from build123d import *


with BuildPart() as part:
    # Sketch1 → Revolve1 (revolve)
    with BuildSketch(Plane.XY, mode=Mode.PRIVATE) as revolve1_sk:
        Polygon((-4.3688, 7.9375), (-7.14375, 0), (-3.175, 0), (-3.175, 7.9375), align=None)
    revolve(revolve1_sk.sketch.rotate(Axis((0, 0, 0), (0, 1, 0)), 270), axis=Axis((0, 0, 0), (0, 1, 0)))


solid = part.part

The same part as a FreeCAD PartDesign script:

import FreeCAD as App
import Part
import Sketcher

V = App.Vector
Q = App.Units.Quantity

doc = App.newDocument("Part")
body = doc.addObject("PartDesign::Body", "Body")

# Sketch on XY plane
sketch1 = doc.addObject("Sketcher::SketchObject", "Sketch")
body.addObject(sketch1)
sketch1.AttachmentSupport = (doc.XY_Plane, [""])
sketch1.MapMode = "FlatFace"
sketch1.addGeometry(Part.LineSegment(V(-4.4, 7.9, 0), V(-7.1, 0, 0)), False)
sketch1.addGeometry(Part.LineSegment(V(-7.1, 0, 0), V(-3.2, 0, 0)), False)
sketch1.addGeometry(Part.LineSegment(V(-3.2, 0, 0), V(-3.2, 7.9, 0)), False)
sketch1.addGeometry(Part.LineSegment(V(-3.2, 7.9, 0), V(-4.4, 7.9, 0)), False)
sketch1.addConstraint(Sketcher.Constraint("Coincident", 0, 2, 1, 1))
sketch1.addConstraint(Sketcher.Constraint("Coincident", 1, 2, 2, 1))
sketch1.addConstraint(Sketcher.Constraint("Coincident", 2, 2, 3, 1))
sketch1.addConstraint(Sketcher.Constraint("Coincident", 3, 2, 0, 1))
sketch1.addConstraint(Sketcher.Constraint("Horizontal", 1))
sketch1.addConstraint(Sketcher.Constraint("Vertical", 2))
sketch1.addConstraint(Sketcher.Constraint("Horizontal", 3))
sketch1.addConstraint(Sketcher.Constraint("PointOnObject", 0, 2, -1))
sketch1.addConstraint(Sketcher.Constraint("DistanceX", 1, 1, 1, 2, Q("0.15625 in")))
sketch1.addConstraint(Sketcher.Constraint("DistanceX", 3, 2, 3, 1, Q("0.047 in")))
sketch1.addConstraint(Sketcher.Constraint("DistanceY", 2, 1, 2, 2, Q("0.3125 in")))
sketch1.addConstraint(Sketcher.Constraint("DistanceX", 0, 2, -1, 1, Q("0.28125 in")))
revolution = doc.addObject("PartDesign::Revolution", "Revolution")
body.addObject(revolution)
revolution.Profile = sketch1
revolution.ReferenceAxis = (sketch1, ["V_Axis"])
revolution.Angle = 360

doc.recompute()
